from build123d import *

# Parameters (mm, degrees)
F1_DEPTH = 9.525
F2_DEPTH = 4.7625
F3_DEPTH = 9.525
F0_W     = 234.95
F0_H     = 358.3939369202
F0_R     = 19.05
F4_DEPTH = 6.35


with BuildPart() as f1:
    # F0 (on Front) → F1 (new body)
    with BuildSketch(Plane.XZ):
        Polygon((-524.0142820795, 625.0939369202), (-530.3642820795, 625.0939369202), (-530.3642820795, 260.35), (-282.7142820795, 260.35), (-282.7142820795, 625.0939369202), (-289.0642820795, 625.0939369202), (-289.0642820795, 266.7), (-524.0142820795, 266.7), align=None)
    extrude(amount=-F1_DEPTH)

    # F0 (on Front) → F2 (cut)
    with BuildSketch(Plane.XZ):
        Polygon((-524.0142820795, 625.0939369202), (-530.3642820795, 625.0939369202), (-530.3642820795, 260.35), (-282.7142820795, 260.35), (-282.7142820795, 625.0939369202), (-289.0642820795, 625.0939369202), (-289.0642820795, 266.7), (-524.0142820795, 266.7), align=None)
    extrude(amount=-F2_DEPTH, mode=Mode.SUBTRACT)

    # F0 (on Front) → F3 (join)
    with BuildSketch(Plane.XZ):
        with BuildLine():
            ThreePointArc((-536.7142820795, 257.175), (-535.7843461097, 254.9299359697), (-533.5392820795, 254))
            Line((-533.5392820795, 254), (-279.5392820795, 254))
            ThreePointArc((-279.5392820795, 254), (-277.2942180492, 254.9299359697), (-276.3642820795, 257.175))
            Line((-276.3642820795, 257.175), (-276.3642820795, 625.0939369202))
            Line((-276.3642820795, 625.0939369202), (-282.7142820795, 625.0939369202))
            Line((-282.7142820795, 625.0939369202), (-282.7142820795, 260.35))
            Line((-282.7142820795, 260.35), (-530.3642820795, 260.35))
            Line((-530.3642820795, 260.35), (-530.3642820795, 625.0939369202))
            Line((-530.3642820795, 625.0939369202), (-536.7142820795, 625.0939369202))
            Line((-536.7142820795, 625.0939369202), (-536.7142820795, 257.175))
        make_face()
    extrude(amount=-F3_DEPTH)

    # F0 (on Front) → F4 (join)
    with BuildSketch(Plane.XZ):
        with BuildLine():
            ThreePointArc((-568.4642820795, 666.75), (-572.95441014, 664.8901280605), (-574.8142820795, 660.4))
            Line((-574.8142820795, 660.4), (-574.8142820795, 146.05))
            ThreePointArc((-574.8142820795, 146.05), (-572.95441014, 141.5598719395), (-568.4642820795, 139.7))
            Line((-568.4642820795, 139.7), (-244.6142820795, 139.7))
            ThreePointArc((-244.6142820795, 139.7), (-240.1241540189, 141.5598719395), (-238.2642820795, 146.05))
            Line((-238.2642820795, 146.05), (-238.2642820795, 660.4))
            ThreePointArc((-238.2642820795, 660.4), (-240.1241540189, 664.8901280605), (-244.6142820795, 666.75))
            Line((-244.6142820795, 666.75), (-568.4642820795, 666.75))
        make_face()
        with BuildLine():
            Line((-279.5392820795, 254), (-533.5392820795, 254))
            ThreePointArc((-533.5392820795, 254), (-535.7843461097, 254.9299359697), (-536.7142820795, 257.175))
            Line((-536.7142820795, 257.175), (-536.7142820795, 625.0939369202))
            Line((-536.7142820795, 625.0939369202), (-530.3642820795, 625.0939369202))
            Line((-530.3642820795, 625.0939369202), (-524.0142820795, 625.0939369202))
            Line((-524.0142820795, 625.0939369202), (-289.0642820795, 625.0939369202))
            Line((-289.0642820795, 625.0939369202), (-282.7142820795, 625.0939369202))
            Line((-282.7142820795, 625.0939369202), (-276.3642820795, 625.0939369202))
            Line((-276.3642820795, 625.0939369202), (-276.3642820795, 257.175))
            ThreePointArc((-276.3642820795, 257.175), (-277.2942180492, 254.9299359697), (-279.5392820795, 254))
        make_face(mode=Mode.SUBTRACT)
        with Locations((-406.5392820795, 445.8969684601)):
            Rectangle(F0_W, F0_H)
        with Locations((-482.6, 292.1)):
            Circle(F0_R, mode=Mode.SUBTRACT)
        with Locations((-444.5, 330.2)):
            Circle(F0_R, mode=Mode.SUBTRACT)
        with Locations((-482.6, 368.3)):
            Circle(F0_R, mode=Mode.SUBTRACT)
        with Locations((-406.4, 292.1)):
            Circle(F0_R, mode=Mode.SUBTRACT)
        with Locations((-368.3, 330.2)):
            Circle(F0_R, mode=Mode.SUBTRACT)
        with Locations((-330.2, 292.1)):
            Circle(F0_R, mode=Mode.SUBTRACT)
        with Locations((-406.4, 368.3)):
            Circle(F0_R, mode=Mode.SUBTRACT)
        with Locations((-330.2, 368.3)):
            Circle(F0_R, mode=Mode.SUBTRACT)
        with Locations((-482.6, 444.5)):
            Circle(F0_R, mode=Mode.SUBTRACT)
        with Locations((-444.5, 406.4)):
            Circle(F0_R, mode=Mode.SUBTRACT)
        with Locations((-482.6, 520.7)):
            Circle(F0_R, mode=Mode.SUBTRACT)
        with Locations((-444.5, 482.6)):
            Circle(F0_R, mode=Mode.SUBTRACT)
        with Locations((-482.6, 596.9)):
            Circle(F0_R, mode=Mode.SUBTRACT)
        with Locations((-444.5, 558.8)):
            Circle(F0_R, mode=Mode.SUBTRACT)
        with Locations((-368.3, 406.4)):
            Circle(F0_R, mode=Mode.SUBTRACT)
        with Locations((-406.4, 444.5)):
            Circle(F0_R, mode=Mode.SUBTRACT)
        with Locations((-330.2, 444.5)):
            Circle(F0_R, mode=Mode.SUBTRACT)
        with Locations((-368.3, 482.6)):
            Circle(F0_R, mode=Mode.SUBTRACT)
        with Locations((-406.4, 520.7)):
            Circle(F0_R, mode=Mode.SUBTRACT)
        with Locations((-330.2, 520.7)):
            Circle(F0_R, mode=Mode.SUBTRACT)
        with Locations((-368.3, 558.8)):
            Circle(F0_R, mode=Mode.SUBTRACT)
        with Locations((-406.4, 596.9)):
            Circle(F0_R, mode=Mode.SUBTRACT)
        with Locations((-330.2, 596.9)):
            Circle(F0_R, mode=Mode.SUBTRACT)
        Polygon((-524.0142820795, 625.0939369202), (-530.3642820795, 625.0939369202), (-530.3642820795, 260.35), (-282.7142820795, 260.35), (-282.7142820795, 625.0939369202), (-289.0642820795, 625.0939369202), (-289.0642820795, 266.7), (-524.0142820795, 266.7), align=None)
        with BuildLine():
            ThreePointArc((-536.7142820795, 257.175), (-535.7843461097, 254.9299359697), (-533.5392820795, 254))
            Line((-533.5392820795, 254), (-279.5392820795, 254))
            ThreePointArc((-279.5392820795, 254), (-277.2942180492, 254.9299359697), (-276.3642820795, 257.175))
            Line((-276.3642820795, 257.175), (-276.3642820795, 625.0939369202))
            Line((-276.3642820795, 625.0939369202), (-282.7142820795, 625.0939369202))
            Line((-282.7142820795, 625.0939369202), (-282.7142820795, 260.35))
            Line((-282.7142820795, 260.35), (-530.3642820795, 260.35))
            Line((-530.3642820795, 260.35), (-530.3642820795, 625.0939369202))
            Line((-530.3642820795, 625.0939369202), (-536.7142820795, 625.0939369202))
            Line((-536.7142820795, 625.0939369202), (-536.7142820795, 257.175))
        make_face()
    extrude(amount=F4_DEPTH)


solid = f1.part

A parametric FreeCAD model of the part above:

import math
import FreeCAD as App
import Part
import Sketcher
Q = App.Units.Quantity

doc = App.newDocument("Part")
body = doc.addObject("PartDesign::Body", "Body")

# Sketch on XZ plane
sketch1 = body.newObject("Sketcher::SketchObject", "Sketch")
sketch1.AttachmentSupport = (doc.getObject("XZ_Plane"), [""])
sketch1.MapMode = "FlatFace"
sketch1.addGeometry(Part.LineSegment(App.Vector(-524, 625, 0), App.Vector(-530, 625, 0)), False)
sketch1.addGeometry(Part.LineSegment(App.Vector(-530, 625, 0), App.Vector(-530, 260, 0)), False)
sketch1.addGeometry(Part.LineSegment(App.Vector(-530, 260, 0), App.Vector(-283, 260, 0)), False)
sketch1.addGeometry(Part.LineSegment(App.Vector(-283, 260, 0), App.Vector(-283, 625, 0)), False)
sketch1.addGeometry(Part.LineSegment(App.Vector(-283, 625, 0), App.Vector(-289, 625, 0)), False)
sketch1.addGeometry(Part.LineSegment(App.Vector(-289, 625, 0), App.Vector(-289, 267, 0)), False)
sketch1.addGeometry(Part.LineSegment(App.Vector(-289, 267, 0), App.Vector(-524, 267, 0)), False)
sketch1.addGeometry(Part.LineSegment(App.Vector(-524, 267, 0), App.Vector(-524, 625, 0)), False)
sketch1.addConstraint(Sketcher.Constraint("Coincident", 0, 2, 1, 1))
sketch1.addConstraint(Sketcher.Constraint("Coincident", 1, 2, 2, 1))
sketch1.addConstraint(Sketcher.Constraint("Coincident", 2, 2, 3, 1))
sketch1.addConstraint(Sketcher.Constraint("Coincident", 3, 2, 4, 1))
sketch1.addConstraint(Sketcher.Constraint("Coincident", 4, 2, 5, 1))
sketch1.addConstraint(Sketcher.Constraint("Coincident", 5, 2, 6, 1))
sketch1.addConstraint(Sketcher.Constraint("Coincident", 6, 2, 7, 1))
sketch1.addConstraint(Sketcher.Constraint("Coincident", 7, 2, 0, 1))
sketch1.addConstraint(Sketcher.Constraint("Horizontal", 0))
sketch1.addConstraint(Sketcher.Constraint("Vertical", 1))
sketch1.addConstraint(Sketcher.Constraint("Horizontal", 2))
sketch1.addConstraint(Sketcher.Constraint("Vertical", 3))
sketch1.addConstraint(Sketcher.Constraint("Horizontal", 4))
sketch1.addConstraint(Sketcher.Constraint("Vertical", 5))
sketch1.addConstraint(Sketcher.Constraint("Horizontal", 6))
sketch1.addConstraint(Sketcher.Constraint("Vertical", 7))
sketch1.addConstraint(Sketcher.Constraint("Horizontal", 0, 2, 3, 2))
sketch1.addConstraint(Sketcher.Constraint("Equal", 0, 4))
sketch1.addConstraint(Sketcher.Constraint("DistanceX", 0, 2, 0, 1, Q("0.25 in")))
sketch1.addConstraint(Sketcher.Constraint("DistanceX", 2, 1, 2, 2, Q("9.75 in")))
sketch1.addConstraint(Sketcher.Constraint("DistanceY", -1, 1, 5, 2, Q("10.5 in")))
sketch1.addConstraint(Sketcher.Constraint("DistanceY", -1, 1, 1, 2, Q("10.25 in")))
sketch1.addConstraint(Sketcher.Constraint("DistanceY", 1, 2, 1, 1, 364.743937))
sketch1.addConstraint(Sketcher.Constraint("DistanceX", 0, 2, -1, 1, 530.364282))
pad1 = body.newObject("PartDesign::Pad", "Pad")
pad1.Profile = sketch1
pad1.Length = Q("0.375 in")
pad1.Reversed = True

# Sketch on XZ plane
sketch2 = body.newObject("Sketcher::SketchObject", "Sketch001")
sketch2.AttachmentSupport = (doc.getObject("XZ_Plane"), [""])
sketch2.MapMode = "FlatFace"
sketch2.addGeometry(Part.LineSegment(App.Vector(-524, 625, 0), App.Vector(-530, 625, 0)), False)
sketch2.addGeometry(Part.LineSegment(App.Vector(-530, 625, 0), App.Vector(-530, 260, 0)), False)
sketch2.addGeometry(Part.LineSegment(App.Vector(-530, 260, 0), App.Vector(-283, 260, 0)), False)
sketch2.addGeometry(Part.LineSegment(App.Vector(-283, 260, 0), App.Vector(-283, 625, 0)), False)
sketch2.addGeometry(Part.LineSegment(App.Vector(-283, 625, 0), App.Vector(-289, 625, 0)), False)
sketch2.addGeometry(Part.LineSegment(App.Vector(-289, 625, 0), App.Vector(-289, 267, 0)), False)
sketch2.addGeometry(Part.LineSegment(App.Vector(-289, 267, 0), App.Vector(-524, 267, 0)), False)
sketch2.addGeometry(Part.LineSegment(App.Vector(-524, 267, 0), App.Vector(-524, 625, 0)), False)
sketch2.addConstraint(Sketcher.Constraint("Coincident", 0, 2, 1, 1))
sketch2.addConstraint(Sketcher.Constraint("Coincident", 1, 2, 2, 1))
sketch2.addConstraint(Sketcher.Constraint("Coincident", 2, 2, 3, 1))
sketch2.addConstraint(Sketcher.Constraint("Coincident", 3, 2, 4, 1))
sketch2.addConstraint(Sketcher.Constraint("Coincident", 4, 2, 5, 1))
sketch2.addConstraint(Sketcher.Constraint("Coincident", 5, 2, 6, 1))
sketch2.addConstraint(Sketcher.Constraint("Coincident", 6, 2, 7, 1))
sketch2.addConstraint(Sketcher.Constraint("Coincident", 7, 2, 0, 1))
sketch2.addConstraint(Sketcher.Constraint("Horizontal", 0))
sketch2.addConstraint(Sketcher.Constraint("Vertical", 1))
sketch2.addConstraint(Sketcher.Constraint("Horizontal", 2))
sketch2.addConstraint(Sketcher.Constraint("Vertical", 3))
sketch2.addConstraint(Sketcher.Constraint("Horizontal", 4))
sketch2.addConstraint(Sketcher.Constraint("Vertical", 5))
sketch2.addConstraint(Sketcher.Constraint("Horizontal", 6))
sketch2.addConstraint(Sketcher.Constraint("Vertical", 7))
sketch2.addConstraint(Sketcher.Constraint("Horizontal", 0, 2, 3, 2))
sketch2.addConstraint(Sketcher.Constraint("Equal", 0, 4))
sketch2.addConstraint(Sketcher.Constraint("DistanceX", 0, 2, 0, 1, Q("0.25 in")))
sketch2.addConstraint(Sketcher.Constraint("DistanceX", 2, 1, 2, 2, Q("9.75 in")))
sketch2.addConstraint(Sketcher.Constraint("DistanceY", -1, 1, 5, 2, Q("10.5 in")))
sketch2.addConstraint(Sketcher.Constraint("DistanceY", -1, 1, 1, 2, Q("10.25 in")))
sketch2.addConstraint(Sketcher.Constraint("DistanceY", 1, 2, 1, 1, 364.743937))
sketch2.addConstraint(Sketcher.Constraint("DistanceX", 0, 2, -1, 1, 530.364282))
pocket1 = body.newObject("PartDesign::Pocket", "Pocket")
pocket1.Profile = sketch2
pocket1.Length = Q("0.1875 in")

# Sketch on XZ plane
sketch3 = body.newObject("Sketcher::SketchObject", "Sketch002")
sketch3.AttachmentSupport = (doc.getObject("XZ_Plane"), [""])
sketch3.MapMode = "FlatFace"
sketch3.addGeometry(Part.ArcOfCircle(Part.Circle(App.Vector(-533.5, 257.2, 0), App.Vector(0, 0, 1), 3.2), math.radians(180), math.radians(270)), False)
sketch3.addGeometry(Part.LineSegment(App.Vector(-533.5, 254, 0), App.Vector(-279.5, 254, 0)), False)
sketch3.addGeometry(Part.ArcOfCircle(Part.Circle(App.Vector(-279.5, 257.2, 0), App.Vector(0, 0, 1), 3.2), math.radians(-90), math.radians(0)), False)
sketch3.addGeometry(Part.LineSegment(App.Vector(-276.4, 257.2, 0), App.Vector(-276.4, 625.1, 0)), False)
sketch3.addGeometry(Part.LineSegment(App.Vector(-276.4, 625.1, 0), App.Vector(-282.7, 625.1, 0)), False)
sketch3.addGeometry(Part.LineSegment(App.Vector(-282.7, 625.1, 0), App.Vector(-282.7, 260.4, 0)), False)
sketch3.addGeometry(Part.LineSegment(App.Vector(-282.7, 260.4, 0), App.Vector(-530.4, 260.4, 0)), False)
sketch3.addGeometry(Part.LineSegment(App.Vector(-530.4, 260.4, 0), App.Vector(-530.4, 625.1, 0)), False)
sketch3.addGeometry(Part.LineSegment(App.Vector(-530.4, 625.1, 0), App.Vector(-536.7, 625.1, 0)), False)
sketch3.addGeometry(Part.LineSegment(App.Vector(-536.7, 625.1, 0), App.Vector(-536.7, 257.2, 0)), False)
sketch3.addConstraint(Sketcher.Constraint("Tangent", 0, 2, 1, 1))
sketch3.addConstraint(Sketcher.Constraint("Tangent", 1, 2, 2, 1))
sketch3.addConstraint(Sketcher.Constraint("Tangent", 2, 2, 3, 1))
sketch3.addConstraint(Sketcher.Constraint("Coincident", 3, 2, 4, 1))
sketch3.addConstraint(Sketcher.Constraint("Coincident", 4, 2, 5, 1))
sketch3.addConstraint(Sketcher.Constraint("Coincident", 5, 2, 6, 1))
sketch3.addConstraint(Sketcher.Constraint("Coincident", 6, 2, 7, 1))
sketch3.addConstraint(Sketcher.Constraint("Coincident", 7, 2, 8, 1))
sketch3.addConstraint(Sketcher.Constraint("Coincident", 8, 2, 9, 1))
sketch3.addConstraint(Sketcher.Constraint("Tangent", 9, 2, 0, 1))
sketch3.addConstraint(Sketcher.Constraint("Horizontal", 1))
sketch3.addConstraint(Sketcher.Constraint("Vertical", 3))
sketch3.addConstraint(Sketcher.Constraint("Horizontal", 4))
sketch3.addConstraint(Sketcher.Constraint("Vertical", 5))
sketch3.addConstraint(Sketcher.Constraint("Horizontal", 6))
sketch3.addConstraint(Sketcher.Constraint("Vertical", 7))
sketch3.addConstraint(Sketcher.Constraint("Horizontal", 8))
sketch3.addConstraint(Sketcher.Constraint("Vertical", 9))
sketch3.addConstraint(Sketcher.Constraint("Equal", 0, 2))
sketch3.addConstraint(Sketcher.Constraint("Horizontal", 4, 2, 7, 2))
sketch3.addConstraint(Sketcher.Constraint("Equal", 4, 8))
sketch3.addConstraint(Sketcher.Constraint("DistanceX", 1, 1, 1, 2, Q("10 in")))
sketch3.addConstraint(Sketcher.Constraint("DistanceY", -1, 1, 0, 2, Q("10 in")))
sketch3.addConstraint(Sketcher.Constraint("Radius", 0, Q("0.125 in")))
sketch3.addConstraint(Sketcher.Constraint("DistanceX", 7, 2, 3, 2, Q("10 in")))
sketch3.addConstraint(Sketcher.Constraint("DistanceY", -1, 1, 5, 2, Q("10.25 in")))
sketch3.addConstraint(Sketcher.Constraint("DistanceY", 3, 1, 3, 2, 367.918937))
sketch3.addConstraint(Sketcher.Constraint("DistanceX", 0, 3, -1, 1, 533.539282))
pad2 = body.newObject("PartDesign::Pad", "Pad001")
pad2.Profile = sketch3
pad2.Length = Q("0.375 in")
pad2.Reversed = True

# Sketch on XZ plane
sketch4 = body.newObject("Sketcher::SketchObject", "Sketch003")
sketch4.AttachmentSupport = (doc.getObject("XZ_Plane"), [""])
sketch4.MapMode = "FlatFace"
sketch4.addGeometry(Part.ArcOfCircle(Part.Circle(App.Vector(-568, 660, 0), App.Vector(0, 0, 1), 6), math.radians(90), math.radians(180)), False)
sketch4.addGeometry(Part.LineSegment(App.Vector(-575, 660, 0), App.Vector(-575, 146, 0)), False)
sketch4.addGeometry(Part.ArcOfCircle(Part.Circle(App.Vector(-568, 146, 0), App.Vector(0, 0, 1), 6), math.radians(180), math.radians(270)), False)
sketch4.addGeometry(Part.LineSegment(App.Vector(-568, 140, 0), App.Vector(-245, 140, 0)), False)
sketch4.addGeometry(Part.ArcOfCircle(Part.Circle(App.Vector(-245, 146, 0), App.Vector(0, 0, 1), 6), math.radians(-90), math.radians(0)), False)
sketch4.addGeometry(Part.LineSegment(App.Vector(-238, 146, 0), App.Vector(-238, 660, 0)), False)
sketch4.addGeometry(Part.ArcOfCircle(Part.Circle(App.Vector(-245, 660, 0), App.Vector(0, 0, 1), 6), math.radians(0), math.radians(90)), False)
sketch4.addGeometry(Part.LineSegment(App.Vector(-245, 667, 0), App.Vector(-568, 667, 0)), False)
sketch4.addGeometry(Part.Circle(App.Vector(-483, 292, 0), App.Vector(0, 0, 1), 19), False)
sketch4.addGeometry(Part.Circle(App.Vector(-444, 330, 0), App.Vector(0, 0, 1), 19), False)
sketch4.addGeometry(Part.Circle(App.Vector(-483, 368, 0), App.Vector(0, 0, 1), 19), False)
sketch4.addGeometry(Part.Circle(App.Vector(-444, 406, 0), App.Vector(0, 0, 1), 19), False)
sketch4.addGeometry(Part.Circle(App.Vector(-406, 292, 0), App.Vector(0, 0, 1), 19), False)
sketch4.addGeometry(Part.Circle(App.Vector(-368, 330, 0), App.Vector(0, 0, 1), 19), False)
sketch4.addGeometry(Part.Circle(App.Vector(-330, 292, 0), App.Vector(0, 0, 1), 19), False)
sketch4.addGeometry(Part.Circle(App.Vector(-406, 368, 0), App.Vector(0, 0, 1), 19), False)
sketch4.addGeometry(Part.Circle(App.Vector(-368, 406, 0), App.Vector(0, 0, 1), 19), False)
sketch4.addGeometry(Part.Circle(App.Vector(-330, 368, 0), App.Vector(0, 0, 1), 19), False)
sketch4.addGeometry(Part.Circle(App.Vector(-483, 444, 0), App.Vector(0, 0, 1), 19), False)
sketch4.addGeometry(Part.Circle(App.Vector(-483, 521, 0), App.Vector(0, 0, 1), 19), False)
sketch4.addGeometry(Part.Circle(App.Vector(-444, 483, 0), App.Vector(0, 0, 1), 19), False)
sketch4.addGeometry(Part.Circle(App.Vector(-483, 597, 0), App.Vector(0, 0, 1), 19), False)
sketch4.addGeometry(Part.Circle(App.Vector(-444, 559, 0), App.Vector(0, 0, 1), 19), False)
sketch4.addGeometry(Part.Circle(App.Vector(-406, 444, 0), App.Vector(0, 0, 1), 19), False)
sketch4.addGeometry(Part.Circle(App.Vector(-368, 483, 0), App.Vector(0, 0, 1), 19), False)
sketch4.addGeometry(Part.Circle(App.Vector(-406, 521, 0), App.Vector(0, 0, 1), 19), False)
sketch4.addGeometry(Part.Circle(App.Vector(-330, 444, 0), App.Vector(0, 0, 1), 19), False)
sketch4.addGeometry(Part.Circle(App.Vector(-330, 521, 0), App.Vector(0, 0, 1), 19), False)
sketch4.addGeometry(Part.Circle(App.Vector(-368, 559, 0), App.Vector(0, 0, 1), 19), False)
sketch4.addGeometry(Part.Circle(App.Vector(-406, 597, 0), App.Vector(0, 0, 1), 19), False)
sketch4.addGeometry(Part.Circle(App.Vector(-330, 597, 0), App.Vector(0, 0, 1), 19), False)
sketch4.addConstraint(Sketcher.Constraint("Tangent", 0, 2, 1, 1))
sketch4.addConstraint(Sketcher.Constraint("Tangent", 1, 2, 2, 1))
sketch4.addConstraint(Sketcher.Constraint("Tangent", 2, 2, 3, 1))
sketch4.addConstraint(Sketcher.Constraint("Tangent", 3, 2, 4, 1))
sketch4.addConstraint(Sketcher.Constraint("Tangent", 4, 2, 5, 1))
sketch4.addConstraint(Sketcher.Constraint("Tangent", 5, 2, 6, 1))
sketch4.addConstraint(Sketcher.Constraint("Tangent", 6, 2, 7, 1))
sketch4.addConstraint(Sketcher.Constraint("Tangent", 7, 2, 0, 1))
sketch4.addConstraint(Sketcher.Constraint("Vertical", 1))
sketch4.addConstraint(Sketcher.Constraint("Horizontal", 3))
sketch4.addConstraint(Sketcher.Constraint("Vertical", 5))
sketch4.addConstraint(Sketcher.Constraint("Horizontal", 7))
sketch4.addConstraint(Sketcher.Constraint("Equal", 0, 2))
sketch4.addConstraint(Sketcher.Constraint("Equal", 2, 4))
sketch4.addConstraint(Sketcher.Constraint("Equal", 4, 6))
sketch4.addConstraint(Sketcher.Constraint("Equal", 8, 9))
sketch4.addConstraint(Sketcher.Constraint("Equal", 9, 10))
sketch4.addConstraint(Sketcher.Constraint("Equal", 10, 11))
sketch4.addConstraint(Sketcher.Constraint("Equal", 11, 12))
sketch4.addConstraint(Sketcher.Constraint("Equal", 12, 13))
sketch4.addConstraint(Sketcher.Constraint("Equal", 13, 14))
sketch4.addConstraint(Sketcher.Constraint("Equal", 14, 15))
sketch4.addConstraint(Sketcher.Constraint("Equal", 15, 16))
sketch4.addConstraint(Sketcher.Constraint("Equal", 16, 17))
sketch4.addConstraint(Sketcher.Constraint("Equal", 17, 18))
sketch4.addConstraint(Sketcher.Constraint("Equal", 18, 19))
sketch4.addConstraint(Sketcher.Constraint("Equal", 19, 20))
sketch4.addConstraint(Sketcher.Constraint("Equal", 20, 21))
sketch4.addConstraint(Sketcher.Constraint("Equal", 21, 22))
sketch4.addConstraint(Sketcher.Constraint("Equal", 22, 23))
sketch4.addConstraint(Sketcher.Constraint("Equal", 23, 24))
sketch4.addConstraint(Sketcher.Constraint("Equal", 24, 25))
sketch4.addConstraint(Sketcher.Constraint("Equal", 25, 26))
sketch4.addConstraint(Sketcher.Constraint("Equal", 26, 27))
sketch4.addConstraint(Sketcher.Constraint("Equal", 27, 28))
sketch4.addConstraint(Sketcher.Constraint("Equal", 28, 29))
sketch4.addConstraint(Sketcher.Constraint("Equal", 29, 30))
sketch4.addConstraint(Sketcher.Constraint("Horizontal", 8, 3, 12, 3))
sketch4.addConstraint(Sketcher.Constraint("Horizontal", 9, 3, 13, 3))
sketch4.addConstraint(Sketcher.Constraint("Horizontal", 12, 3, 14, 3))
sketch4.addConstraint(Sketcher.Constraint("Horizontal", 10, 3, 15, 3))
sketch4.addConstraint(Sketcher.Constraint("Horizontal", 11, 3, 16, 3))
sketch4.addConstraint(Sketcher.Constraint("Horizontal", 15, 3, 17, 3))
sketch4.addConstraint(Sketcher.Constraint("Horizontal", 18, 3, 23, 3))
sketch4.addConstraint(Sketcher.Constraint("Horizontal", 20, 3, 24, 3))
sketch4.addConstraint(Sketcher.Constraint("Horizontal", 19, 3, 25, 3))
sketch4.addConstraint(Sketcher.Constraint("Horizontal", 23, 3, 26, 3))
sketch4.addConstraint(Sketcher.Constraint("Horizontal", 25, 3, 27, 3))
sketch4.addConstraint(Sketcher.Constraint("Horizontal", 22, 3, 28, 3))
sketch4.addConstraint(Sketcher.Constraint("Horizontal", 21, 3, 29, 3))
sketch4.addConstraint(Sketcher.Constraint("Horizontal", 29, 3, 30, 3))
sketch4.addConstraint(Sketcher.Constraint("Vertical", 8, 3, 10, 3))
sketch4.addConstraint(Sketcher.Constraint("Vertical", 9, 3, 11, 3))
sketch4.addConstraint(Sketcher.Constraint("Vertical", 12, 3, 15, 3))
sketch4.addConstraint(Sketcher.Constraint("Vertical", 13, 3, 16, 3))
sketch4.addConstraint(Sketcher.Constraint("Vertical", 14, 3, 17, 3))
sketch4.addConstraint(Sketcher.Constraint("Vertical", 10, 3, 18, 3))
sketch4.addConstraint(Sketcher.Constraint("Vertical", 18, 3, 19, 3))
sketch4.addConstraint(Sketcher.Constraint("Vertical", 11, 3, 20, 3))
sketch4.addConstraint(Sketcher.Constraint("Vertical", 19, 3, 21, 3))
sketch4.addConstraint(Sketcher.Constraint("Vertical", 20, 3, 22, 3))
sketch4.addConstraint(Sketcher.Constraint("Vertical", 15, 3, 23, 3))
sketch4.addConstraint(Sketcher.Constraint("Vertical", 16, 3, 24, 3))
sketch4.addConstraint(Sketcher.Constraint("Vertical", 23, 3, 25, 3))
sketch4.addConstraint(Sketcher.Constraint("Vertical", 17, 3, 26, 3))
sketch4.addConstraint(Sketcher.Constraint("Vertical", 26, 3, 27, 3))
sketch4.addConstraint(Sketcher.Constraint("Vertical", 24, 3, 28, 3))
sketch4.addConstraint(Sketcher.Constraint("Vertical", 25, 3, 29, 3))
sketch4.addConstraint(Sketcher.Constraint("Vertical", 27, 3, 30, 3))
sketch4.addConstraint(Sketcher.Constraint("Diameter", 8, Q("1.5 in")))
sketch4.addConstraint(Sketcher.Constraint("Radius", 0, Q("0.25 in")))
sketch4.addConstraint(Sketcher.Constraint("DistanceY", -1, 1, 0, 3, Q("26 in")))
sketch4.addConstraint(Sketcher.Constraint("DistanceX", 8, 3, -1, 1, Q("19 in")))
sketch4.addConstraint(Sketcher.Constraint("DistanceY", -1, 1, 9, 3, Q("13 in")))
sketch4.addConstraint(Sketcher.Constraint("DistanceY", -1, 1, 11, 3, Q("16 in")))
sketch4.addConstraint(Sketcher.Constraint("DistanceX", 12, 3, -1, 1, Q("16 in")))
sketch4.addConstraint(Sketcher.Constraint("DistanceX", 14, 3, -1, 1, Q("13 in")))
sketch4.addConstraint(Sketcher.Constraint("DistanceY", -1, 1, 20, 3, Q("19 in")))
sketch4.addConstraint(Sketcher.Constraint("DistanceY", -1, 1, 22, 3, Q("22 in")))
sketch4.addConstraint(Sketcher.Constraint("DistanceY", 8, 3, 10, 3, Q("3 in")))
sketch4.addConstraint(Sketcher.Constraint("DistanceX", 9, 3, 13, 3, Q("3 in")))
sketch4.addConstraint(Sketcher.Constraint("DistanceY", 10, 3, 18, 3, Q("3 in")))
sketch4.addConstraint(Sketcher.Constraint("DistanceY", 18, 3, 19, 3, Q("3 in")))
sketch4.addConstraint(Sketcher.Constraint("DistanceY", 19, 3, 21, 3, Q("3 in")))
sketch4.addConstraint(Sketcher.Constraint("DistanceY", 2, 2, 8, 3, Q("6 in")))
sketch4.addConstraint(Sketcher.Constraint("DistanceX", 3, 1, 3, 2, Q("12.75 in")))
sketch4.addConstraint(Sketcher.Constraint("DistanceY", 1, 2, 1, 1, Q("20.25 in")))
sketch4.addConstraint(Sketcher.Constraint("DistanceX", 9, 3, -1, 1, Q("17.5 in")))
sketch4.addConstraint(Sketcher.Constraint("DistanceX", 0, 3, -1, 1, 568.464282))
pad3 = body.newObject("PartDesign::Pad", "Pad002")
pad3.Profile = sketch4
pad3.Length = Q("0.25 in")

doc.recompute()
